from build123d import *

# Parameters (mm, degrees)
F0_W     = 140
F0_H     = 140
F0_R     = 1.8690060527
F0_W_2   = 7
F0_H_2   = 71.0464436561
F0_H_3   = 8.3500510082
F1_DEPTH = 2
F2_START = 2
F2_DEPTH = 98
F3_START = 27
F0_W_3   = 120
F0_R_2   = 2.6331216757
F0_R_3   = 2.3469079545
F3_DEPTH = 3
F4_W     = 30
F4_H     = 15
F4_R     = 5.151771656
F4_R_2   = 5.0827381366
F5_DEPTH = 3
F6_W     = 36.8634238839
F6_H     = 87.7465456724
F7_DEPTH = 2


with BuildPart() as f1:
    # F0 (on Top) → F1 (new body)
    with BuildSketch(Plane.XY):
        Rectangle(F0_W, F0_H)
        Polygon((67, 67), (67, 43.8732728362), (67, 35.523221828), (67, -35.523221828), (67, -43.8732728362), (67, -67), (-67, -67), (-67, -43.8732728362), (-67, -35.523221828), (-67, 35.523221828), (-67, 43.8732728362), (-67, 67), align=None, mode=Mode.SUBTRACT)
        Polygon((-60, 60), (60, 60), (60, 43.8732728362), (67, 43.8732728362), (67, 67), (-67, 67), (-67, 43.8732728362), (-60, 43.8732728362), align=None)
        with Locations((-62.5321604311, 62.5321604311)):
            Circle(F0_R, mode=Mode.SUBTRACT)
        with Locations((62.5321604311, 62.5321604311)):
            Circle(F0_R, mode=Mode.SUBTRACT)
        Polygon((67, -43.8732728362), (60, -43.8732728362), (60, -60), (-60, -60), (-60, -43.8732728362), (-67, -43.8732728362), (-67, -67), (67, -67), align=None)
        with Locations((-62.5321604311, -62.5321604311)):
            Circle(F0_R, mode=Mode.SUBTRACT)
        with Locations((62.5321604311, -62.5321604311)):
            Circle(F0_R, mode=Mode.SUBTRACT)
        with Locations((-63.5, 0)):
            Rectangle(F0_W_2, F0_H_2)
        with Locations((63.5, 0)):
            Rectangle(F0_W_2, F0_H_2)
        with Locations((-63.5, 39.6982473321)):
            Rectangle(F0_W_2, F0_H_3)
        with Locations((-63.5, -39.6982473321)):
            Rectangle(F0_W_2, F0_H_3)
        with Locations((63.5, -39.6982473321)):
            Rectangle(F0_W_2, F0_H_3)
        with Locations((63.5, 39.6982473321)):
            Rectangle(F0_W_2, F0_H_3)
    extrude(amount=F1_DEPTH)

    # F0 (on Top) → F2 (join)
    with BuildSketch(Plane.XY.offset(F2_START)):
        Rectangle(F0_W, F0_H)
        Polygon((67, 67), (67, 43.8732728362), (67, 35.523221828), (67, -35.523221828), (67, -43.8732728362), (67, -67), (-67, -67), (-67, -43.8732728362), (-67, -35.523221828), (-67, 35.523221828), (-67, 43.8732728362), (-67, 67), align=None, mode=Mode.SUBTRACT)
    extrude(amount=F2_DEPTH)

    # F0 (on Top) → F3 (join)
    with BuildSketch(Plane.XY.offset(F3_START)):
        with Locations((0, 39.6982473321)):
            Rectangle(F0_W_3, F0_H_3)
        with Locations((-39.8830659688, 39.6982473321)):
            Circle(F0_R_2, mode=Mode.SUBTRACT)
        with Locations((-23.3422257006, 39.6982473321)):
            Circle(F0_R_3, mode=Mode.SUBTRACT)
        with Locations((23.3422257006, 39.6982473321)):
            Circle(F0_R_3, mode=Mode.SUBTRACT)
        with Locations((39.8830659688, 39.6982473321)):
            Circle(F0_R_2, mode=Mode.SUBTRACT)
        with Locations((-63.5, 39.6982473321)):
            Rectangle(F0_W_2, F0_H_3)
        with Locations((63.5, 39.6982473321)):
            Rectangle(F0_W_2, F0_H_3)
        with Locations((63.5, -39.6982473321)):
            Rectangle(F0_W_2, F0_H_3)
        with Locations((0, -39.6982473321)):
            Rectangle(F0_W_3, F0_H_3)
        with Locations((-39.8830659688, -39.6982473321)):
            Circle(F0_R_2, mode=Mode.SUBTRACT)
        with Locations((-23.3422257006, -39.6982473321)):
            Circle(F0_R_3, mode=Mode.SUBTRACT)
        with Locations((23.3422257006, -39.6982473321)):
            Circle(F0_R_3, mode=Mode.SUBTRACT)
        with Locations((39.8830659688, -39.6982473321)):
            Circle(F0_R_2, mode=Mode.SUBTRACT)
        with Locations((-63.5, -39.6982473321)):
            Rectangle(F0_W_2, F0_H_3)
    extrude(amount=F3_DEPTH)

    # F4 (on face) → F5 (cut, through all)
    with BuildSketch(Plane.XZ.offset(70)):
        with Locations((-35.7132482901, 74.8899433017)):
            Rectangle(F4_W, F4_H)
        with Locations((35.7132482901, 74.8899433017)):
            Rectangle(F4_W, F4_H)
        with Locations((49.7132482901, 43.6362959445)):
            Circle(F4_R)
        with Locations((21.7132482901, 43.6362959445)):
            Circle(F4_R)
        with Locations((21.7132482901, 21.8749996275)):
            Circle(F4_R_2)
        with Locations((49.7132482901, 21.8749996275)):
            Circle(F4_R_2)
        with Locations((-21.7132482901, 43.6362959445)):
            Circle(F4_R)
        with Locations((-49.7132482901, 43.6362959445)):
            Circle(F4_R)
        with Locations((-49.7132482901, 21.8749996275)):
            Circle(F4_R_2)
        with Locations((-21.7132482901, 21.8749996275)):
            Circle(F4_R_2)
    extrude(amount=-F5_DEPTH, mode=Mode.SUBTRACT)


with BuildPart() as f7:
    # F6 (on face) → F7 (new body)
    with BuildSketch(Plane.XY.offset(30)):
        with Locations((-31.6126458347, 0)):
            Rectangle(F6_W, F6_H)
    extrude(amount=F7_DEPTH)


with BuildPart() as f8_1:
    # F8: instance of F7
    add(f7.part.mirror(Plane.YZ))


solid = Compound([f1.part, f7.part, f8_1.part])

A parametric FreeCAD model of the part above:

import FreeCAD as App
import Part
import Sketcher
Q = App.Units.Quantity


def add_polygon(sketch, points):
    """Adds a closed chain of lines whose ends are joined by coincident constraints."""
    first, n = sketch.GeometryCount, len(points)
    for a, b in zip(points, points[1:] + points[:1]):
        sketch.addGeometry(Part.LineSegment(App.Vector(*a, 0), App.Vector(*b, 0)), False)
    for i in range(n):
        sketch.addConstraint(Sketcher.Constraint("Coincident", first + i, 2, first + (i + 1) % n, 1))

doc = App.newDocument("Part")
body = doc.addObject("PartDesign::Body", "Body")

# Sketch on XY plane
sketch1 = doc.addObject("Sketcher::SketchObject", "Sketch")
body.addObject(sketch1)
sketch1.AttachmentSupport = (doc.XY_Plane, [""])
sketch1.MapMode = "FlatFace"
add_polygon(sketch1, [(-70, 70), (-70, -70), (70, -70), (70, 70)])  # lines 0-3
sketch1.addGeometry(Part.Circle(App.Vector(-62.5, -62.5, 0), App.Vector(0, 0, 1), 1.9), False)  # 4
sketch1.addGeometry(Part.Circle(App.Vector(62.5, -62.5, 0), App.Vector(0, 0, 1), 1.9), False)  # 5
sketch1.addGeometry(Part.Circle(App.Vector(-62.5, 62.5, 0), App.Vector(0, 0, 1), 1.9), False)  # 6
add_polygon(sketch1, [(60, -60), (-60, -60), (-60, 60), (60, 60)])  # lines 7-10
sketch1.addGeometry(Part.Circle(App.Vector(62.5, 62.5, 0), App.Vector(0, 0, 1), 1.9), False)  # 11
sketch1.addConstraint(Sketcher.Constraint("Vertical", 0))
sketch1.addConstraint(Sketcher.Constraint("Horizontal", 1))
sketch1.addConstraint(Sketcher.Constraint("Vertical", 2))
sketch1.addConstraint(Sketcher.Constraint("Horizontal", 3))
sketch1.addConstraint(Sketcher.Constraint("Horizontal", 7))
sketch1.addConstraint(Sketcher.Constraint("Vertical", 8))
sketch1.addConstraint(Sketcher.Constraint("Horizontal", 9))
sketch1.addConstraint(Sketcher.Constraint("Vertical", 10))
sketch1.addConstraint(Sketcher.Constraint("Equal", 4, 5))
sketch1.addConstraint(Sketcher.Constraint("Equal", 5, 6))
sketch1.addConstraint(Sketcher.Constraint("Equal", 6, 11))
sketch1.addConstraint(Sketcher.Constraint("Symmetric", 5, 3, 6, 3, -1, 1))
sketch1.addConstraint(Sketcher.Constraint("Symmetric", 4, 3, 11, 3, -1, 1))
sketch1.addConstraint(Sketcher.Constraint("Symmetric", 0, 2, 2, 2, -1, 1))
sketch1.addConstraint(Sketcher.Constraint("Symmetric", 7, 2, 9, 2, -1, 1))
sketch1.addConstraint(Sketcher.Constraint("Symmetric", 4, 3, 5, 3, -2))
sketch1.addConstraint(Sketcher.Constraint("Equal", 3, 0))
sketch1.addConstraint(Sketcher.Constraint("Equal", 9, 8))
sketch1.addConstraint(Sketcher.Constraint("DistanceX", 1, 1, 1, 2, Q("140 mm")))
sketch1.addConstraint(Sketcher.Constraint("DistanceX", 7, 2, 7, 1, Q("120 mm")))
sketch1.addConstraint(Sketcher.Constraint("Diameter", 4, Q("3.738012 mm")))
sketch1.addConstraint(Sketcher.Constraint("DistanceX", 4, 3, -1, 1, Q("62.53216 mm")))
sketch1.addConstraint(Sketcher.Constraint("DistanceY", 4, 3, -1, 1, Q("62.53216 mm")))
pad1 = doc.addObject("PartDesign::Pad", "Pad")
body.addObject(pad1)
pad1.Profile = sketch1
pad1.Length = 2

# Sketch on XY plane
sketch2 = doc.addObject("Sketcher::SketchObject", "Sketch001")
body.addObject(sketch2)
sketch2.AttachmentSupport = (doc.XY_Plane, [""])
sketch2.MapMode = "FlatFace"
sketch2.AttachmentOffset = App.Placement(App.Vector(0, 0, 2), App.Rotation())
add_polygon(sketch2, [(-70, 70), (-70, -70), (70, -70), (70, 70)])  # lines 0-3
add_polygon(sketch2, [(-67, 67), (67, 67), (67, -67), (-67, -67)])  # lines 4-7
sketch2.addConstraint(Sketcher.Constraint("Vertical", 0))
sketch2.addConstraint(Sketcher.Constraint("Horizontal", 1))
sketch2.addConstraint(Sketcher.Constraint("Vertical", 2))
sketch2.addConstraint(Sketcher.Constraint("Horizontal", 3))
sketch2.addConstraint(Sketcher.Constraint("Horizontal", 4))
sketch2.addConstraint(Sketcher.Constraint("Vertical", 5))
sketch2.addConstraint(Sketcher.Constraint("Horizontal", 6))
sketch2.addConstraint(Sketcher.Constraint("Vertical", 7))
sketch2.addConstraint(Sketcher.Constraint("Symmetric", 0, 2, 2, 2, -1, 1))
sketch2.addConstraint(Sketcher.Constraint("Symmetric", 4, 2, 6, 2, -1, 1))
sketch2.addConstraint(Sketcher.Constraint("Equal", 3, 0))
sketch2.addConstraint(Sketcher.Constraint("Equal", 6, 5))
sketch2.addConstraint(Sketcher.Constraint("DistanceX", 1, 1, 1, 2, Q("140 mm")))
sketch2.addConstraint(Sketcher.Constraint("DistanceX", 4, 1, 4, 2, Q("134 mm")))
pad2 = doc.addObject("PartDesign::Pad", "Pad001")
body.addObject(pad2)
pad2.Profile = sketch2
pad2.Length = 98

# Sketch on XY plane
sketch3 = doc.addObject("Sketcher::SketchObject", "Sketch002")
body.addObject(sketch3)
sketch3.AttachmentSupport = (doc.XY_Plane, [""])
sketch3.MapMode = "FlatFace"
sketch3.AttachmentOffset = App.Placement(App.Vector(0, 0, 27), App.Rotation())
add_polygon(sketch3, [(-67, 43.9), (-67, 35.5), (67, 35.5), (67, 43.9)])  # lines 0-3
sketch3.addGeometry(Part.Circle(App.Vector(-39.9, 39.7, 0), App.Vector(0, 0, 1), 2.6), False)  # 4
sketch3.addGeometry(Part.Circle(App.Vector(-23.3, 39.7, 0), App.Vector(0, 0, 1), 2.3), False)  # 5
sketch3.addGeometry(Part.Circle(App.Vector(23.3, 39.7, 0), App.Vector(0, 0, 1), 2.3), False)  # 6
sketch3.addGeometry(Part.Circle(App.Vector(39.9, 39.7, 0), App.Vector(0, 0, 1), 2.6), False)  # 7
add_polygon(sketch3, [(67, -43.9), (67, -35.5), (-67, -35.5), (-67, -43.9)])  # lines 8-11
sketch3.addGeometry(Part.Circle(App.Vector(-39.9, -39.7, 0), App.Vector(0, 0, 1), 2.6), False)  # 12
sketch3.addGeometry(Part.Circle(App.Vector(-23.3, -39.7, 0), App.Vector(0, 0, 1), 2.3), False)  # 13
sketch3.addGeometry(Part.Circle(App.Vector(23.3, -39.7, 0), App.Vector(0, 0, 1), 2.3), False)  # 14
sketch3.addGeometry(Part.Circle(App.Vector(39.9, -39.7, 0), App.Vector(0, 0, 1), 2.6), False)  # 15
sketch3.addConstraint(Sketcher.Constraint("Vertical", 0))
sketch3.addConstraint(Sketcher.Constraint("Horizontal", 1))
sketch3.addConstraint(Sketcher.Constraint("Vertical", 2))
sketch3.addConstraint(Sketcher.Constraint("Horizontal", 3))
sketch3.addConstraint(Sketcher.Constraint("Vertical", 8))
sketch3.addConstraint(Sketcher.Constraint("Horizontal", 9))
sketch3.addConstraint(Sketcher.Constraint("Vertical", 10))
sketch3.addConstraint(Sketcher.Constraint("Horizontal", 11))
sketch3.addConstraint(Sketcher.Constraint("Equal", 5, 6))
sketch3.addConstraint(Sketcher.Constraint("Equal", 4, 7))
sketch3.addConstraint(Sketcher.Constraint("Equal", 7, 12))
sketch3.addConstraint(Sketcher.Constraint("Equal", 6, 13))
sketch3.addConstraint(Sketcher.Constraint("Equal", 13, 14))
sketch3.addConstraint(Sketcher.Constraint("Equal", 12, 15))
sketch3.addConstraint(Sketcher.Constraint("Symmetric", 7, 3, 12, 3, -1, 1))
sketch3.addConstraint(Sketcher.Constraint("Symmetric", 6, 3, 13, 3, -1, 1))
sketch3.addConstraint(Sketcher.Constraint("Symmetric", 5, 3, 14, 3, -1, 1))
sketch3.addConstraint(Sketcher.Constraint("Symmetric", 4, 3, 15, 3, -1, 1))
sketch3.addConstraint(Sketcher.Constraint("Symmetric", 0, 2, 8, 2, -1, 1))
sketch3.addConstraint(Sketcher.Constraint("Symmetric", 2, 2, 10, 2, -1, 1))
sketch3.addConstraint(Sketcher.Constraint("Symmetric", 5, 3, 6, 3, -2))
sketch3.addConstraint(Sketcher.Constraint("Symmetric", 4, 3, 7, 3, -2))
sketch3.addConstraint(Sketcher.Constraint("Horizontal", 4, 3, 5, 3))
sketch3.addConstraint(Sketcher.Constraint("Vertical", 2, 2, 8, 2))
sketch3.addConstraint(Sketcher.Constraint("DistanceX", 1, 1, 1, 2, Q("134 mm")))
sketch3.addConstraint(Sketcher.Constraint("Diameter", 4, Q("5.266243 mm")))
sketch3.addConstraint(Sketcher.Constraint("Diameter", 5, Q("4.693816 mm")))
sketch3.addConstraint(Sketcher.Constraint("DistanceY", 0, 2, 0, 1, Q("8.350051 mm")))
sketch3.addConstraint(Sketcher.Constraint("DistanceY", -1, 1, 0, 2, Q("35.523222 mm")))
sketch3.addConstraint(Sketcher.Constraint("DistanceX", 4, 3, 5, 3, Q("16.54084 mm")))
sketch3.addConstraint(Sketcher.Constraint("DistanceX", 5, 3, 6, 3, Q("46.684451 mm")))
sketch3.addConstraint(Sketcher.Constraint("DistanceY", 12, 3, 0, 2, Q("75.221469 mm")))
pad3 = doc.addObject("PartDesign::Pad", "Pad002")
body.addObject(pad3)
pad3.Profile = sketch3
pad3.Length = 3

# Sketch on XZ plane
sketch4 = doc.addObject("Sketcher::SketchObject", "Sketch003")
body.addObject(sketch4)
sketch4.AttachmentSupport = (doc.XZ_Plane, [""])
sketch4.MapMode = "FlatFace"
sketch4.AttachmentOffset = App.Placement(App.Vector(0, 0, 70), App.Rotation())
add_polygon(sketch4, [(-51, 82), (-51, 67), (-21, 67), (-21, 82)])  # lines 0-3
add_polygon(sketch4, [(21, 82), (21, 67), (51, 67), (51, 82)])  # lines 4-7
sketch4.addGeometry(Part.Circle(App.Vector(50, 44, 0), App.Vector(0, 0, 1), 5), False)  # 8
sketch4.addGeometry(Part.Circle(App.Vector(22, 44, 0), App.Vector(0, 0, 1), 5), False)  # 9
sketch4.addGeometry(Part.Circle(App.Vector(22, 22, 0), App.Vector(0, 0, 1), 5), False)  # 10
sketch4.addGeometry(Part.Circle(App.Vector(50, 22, 0), App.Vector(0, 0, 1), 5), False)  # 11
sketch4.addGeometry(Part.Circle(App.Vector(-22, 44, 0), App.Vector(0, 0, 1), 5), False)  # 12
sketch4.addGeometry(Part.Circle(App.Vector(-50, 44, 0), App.Vector(0, 0, 1), 5), False)  # 13
sketch4.addGeometry(Part.Circle(App.Vector(-50, 22, 0), App.Vector(0, 0, 1), 5), False)  # 14
sketch4.addGeometry(Part.Circle(App.Vector(-22, 22, 0), App.Vector(0, 0, 1), 5), False)  # 15
sketch4.addConstraint(Sketcher.Constraint("Vertical", 0))
sketch4.addConstraint(Sketcher.Constraint("Horizontal", 1))
sketch4.addConstraint(Sketcher.Constraint("Vertical", 2))
sketch4.addConstraint(Sketcher.Constraint("Horizontal", 3))
sketch4.addConstraint(Sketcher.Constraint("Vertical", 4))
sketch4.addConstraint(Sketcher.Constraint("Horizontal", 5))
sketch4.addConstraint(Sketcher.Constraint("Vertical", 6))
sketch4.addConstraint(Sketcher.Constraint("Horizontal", 7))
sketch4.addConstraint(Sketcher.Constraint("Equal", 8, 9))
sketch4.addConstraint(Sketcher.Constraint("Equal", 10, 11))
sketch4.addConstraint(Sketcher.Constraint("Equal", 9, 12))
sketch4.addConstraint(Sketcher.Constraint("Equal", 12, 13))
sketch4.addConstraint(Sketcher.Constraint("Equal", 11, 14))
sketch4.addConstraint(Sketcher.Constraint("Equal", 14, 15))
sketch4.addConstraint(Sketcher.Constraint("Symmetric", 9, 3, 12, 3, -2))
sketch4.addConstraint(Sketcher.Constraint("Symmetric", 8, 3, 13, 3, -2))
sketch4.addConstraint(Sketcher.Constraint("Symmetric", 11, 3, 14, 3, -2))
sketch4.addConstraint(Sketcher.Constraint("Symmetric", 10, 3, 15, 3, -2))
sketch4.addConstraint(Sketcher.Constraint("Symmetric", 1, 2, 4, 2, -2))
sketch4.addConstraint(Sketcher.Constraint("Symmetric", 3, 2, 6, 2, -2))
sketch4.addConstraint(Sketcher.Constraint("Horizontal", 8, 3, 9, 3))
sketch4.addConstraint(Sketcher.Constraint("Horizontal", 10, 3, 11, 3))
sketch4.addConstraint(Sketcher.Constraint("Vertical", 9, 3, 10, 3))
sketch4.addConstraint(Sketcher.Constraint("Vertical", 8, 3, 11, 3))
sketch4.addConstraint(Sketcher.Constraint("DistanceX", 1, 1, 1, 2, Q("30 mm")))
sketch4.addConstraint(Sketcher.Constraint("DistanceY", 0, 2, 0, 1, Q("15 mm")))
sketch4.addConstraint(Sketcher.Constraint("DistanceX", 9, 3, 8, 3, Q("28 mm")))
sketch4.addConstraint(Sketcher.Constraint("DistanceX", 0, 2, 13, 3, Q("1 mm")))
sketch4.addConstraint(Sketcher.Constraint("Diameter", 8, Q("10.303543 mm")))
sketch4.addConstraint(Sketcher.Constraint("Diameter", 10, Q("10.165476 mm")))
sketch4.addConstraint(Sketcher.Constraint("DistanceY", -1, 1, 10, 3, Q("21.875 mm")))
sketch4.addConstraint(Sketcher.Constraint("DistanceX", -1, 1, 8, 3, Q("49.713248 mm")))
sketch4.addConstraint(Sketcher.Constraint("DistanceY", -1, 1, 8, 3, Q("43.636296 mm")))
sketch4.addConstraint(Sketcher.Constraint("DistanceY", -1, 1, 0, 2, Q("67.389943 mm")))
pocket1 = doc.addObject("PartDesign::Pocket", "Pocket")
body.addObject(pocket1)
pocket1.Profile = sketch4
pocket1.Length = 3
body2 = doc.addObject("PartDesign::Body", "Body001")

# Sketch on XY plane
sketch5 = doc.addObject("Sketcher::SketchObject", "Sketch004")
body2.addObject(sketch5)
sketch5.AttachmentSupport = (doc.getObject("XY_Plane001"), [""])
sketch5.MapMode = "FlatFace"
sketch5.AttachmentOffset = App.Placement(App.Vector(0, 0, 30), App.Rotation())
add_polygon(sketch5, [(-50, 44), (-50, -44), (-13, -44), (-13, 44)])  # lines 0-3
sketch5.addConstraint(Sketcher.Constraint("Vertical", 0))
sketch5.addConstraint(Sketcher.Constraint("Horizontal", 1))
sketch5.addConstraint(Sketcher.Constraint("Vertical", 2))
sketch5.addConstraint(Sketcher.Constraint("Horizontal", 3))
sketch5.addConstraint(Sketcher.Constraint("DistanceX", 1, 1, 1, 2, Q("36.863424 mm")))
sketch5.addConstraint(Sketcher.Constraint("DistanceY", 0, 2, 0, 1, Q("87.746546 mm")))
sketch5.addConstraint(Sketcher.Constraint("DistanceX", 0, 2, -1, 1, Q("50.044358 mm")))
sketch5.addConstraint(Sketcher.Constraint("DistanceY", 0, 2, -1, 1, Q("43.873273 mm")))
pad4 = doc.addObject("PartDesign::Pad", "Pad003")
body2.addObject(pad4)
pad4.Profile = sketch5
pad4.Length = 2
body3 = doc.addObject("PartDesign::Body", "Body002")
doc.recompute()

mirroring = doc.addObject("Part::Mirroring", "Mirroring")
mirroring.Source = body2
mirroring.Base = App.Vector(0, 0, 0)
mirroring.Normal = App.Vector(1, 0, 0)
body3.BaseFeature = mirroring
doc.recompute()
mirroring.Visibility = False

doc.recompute()
